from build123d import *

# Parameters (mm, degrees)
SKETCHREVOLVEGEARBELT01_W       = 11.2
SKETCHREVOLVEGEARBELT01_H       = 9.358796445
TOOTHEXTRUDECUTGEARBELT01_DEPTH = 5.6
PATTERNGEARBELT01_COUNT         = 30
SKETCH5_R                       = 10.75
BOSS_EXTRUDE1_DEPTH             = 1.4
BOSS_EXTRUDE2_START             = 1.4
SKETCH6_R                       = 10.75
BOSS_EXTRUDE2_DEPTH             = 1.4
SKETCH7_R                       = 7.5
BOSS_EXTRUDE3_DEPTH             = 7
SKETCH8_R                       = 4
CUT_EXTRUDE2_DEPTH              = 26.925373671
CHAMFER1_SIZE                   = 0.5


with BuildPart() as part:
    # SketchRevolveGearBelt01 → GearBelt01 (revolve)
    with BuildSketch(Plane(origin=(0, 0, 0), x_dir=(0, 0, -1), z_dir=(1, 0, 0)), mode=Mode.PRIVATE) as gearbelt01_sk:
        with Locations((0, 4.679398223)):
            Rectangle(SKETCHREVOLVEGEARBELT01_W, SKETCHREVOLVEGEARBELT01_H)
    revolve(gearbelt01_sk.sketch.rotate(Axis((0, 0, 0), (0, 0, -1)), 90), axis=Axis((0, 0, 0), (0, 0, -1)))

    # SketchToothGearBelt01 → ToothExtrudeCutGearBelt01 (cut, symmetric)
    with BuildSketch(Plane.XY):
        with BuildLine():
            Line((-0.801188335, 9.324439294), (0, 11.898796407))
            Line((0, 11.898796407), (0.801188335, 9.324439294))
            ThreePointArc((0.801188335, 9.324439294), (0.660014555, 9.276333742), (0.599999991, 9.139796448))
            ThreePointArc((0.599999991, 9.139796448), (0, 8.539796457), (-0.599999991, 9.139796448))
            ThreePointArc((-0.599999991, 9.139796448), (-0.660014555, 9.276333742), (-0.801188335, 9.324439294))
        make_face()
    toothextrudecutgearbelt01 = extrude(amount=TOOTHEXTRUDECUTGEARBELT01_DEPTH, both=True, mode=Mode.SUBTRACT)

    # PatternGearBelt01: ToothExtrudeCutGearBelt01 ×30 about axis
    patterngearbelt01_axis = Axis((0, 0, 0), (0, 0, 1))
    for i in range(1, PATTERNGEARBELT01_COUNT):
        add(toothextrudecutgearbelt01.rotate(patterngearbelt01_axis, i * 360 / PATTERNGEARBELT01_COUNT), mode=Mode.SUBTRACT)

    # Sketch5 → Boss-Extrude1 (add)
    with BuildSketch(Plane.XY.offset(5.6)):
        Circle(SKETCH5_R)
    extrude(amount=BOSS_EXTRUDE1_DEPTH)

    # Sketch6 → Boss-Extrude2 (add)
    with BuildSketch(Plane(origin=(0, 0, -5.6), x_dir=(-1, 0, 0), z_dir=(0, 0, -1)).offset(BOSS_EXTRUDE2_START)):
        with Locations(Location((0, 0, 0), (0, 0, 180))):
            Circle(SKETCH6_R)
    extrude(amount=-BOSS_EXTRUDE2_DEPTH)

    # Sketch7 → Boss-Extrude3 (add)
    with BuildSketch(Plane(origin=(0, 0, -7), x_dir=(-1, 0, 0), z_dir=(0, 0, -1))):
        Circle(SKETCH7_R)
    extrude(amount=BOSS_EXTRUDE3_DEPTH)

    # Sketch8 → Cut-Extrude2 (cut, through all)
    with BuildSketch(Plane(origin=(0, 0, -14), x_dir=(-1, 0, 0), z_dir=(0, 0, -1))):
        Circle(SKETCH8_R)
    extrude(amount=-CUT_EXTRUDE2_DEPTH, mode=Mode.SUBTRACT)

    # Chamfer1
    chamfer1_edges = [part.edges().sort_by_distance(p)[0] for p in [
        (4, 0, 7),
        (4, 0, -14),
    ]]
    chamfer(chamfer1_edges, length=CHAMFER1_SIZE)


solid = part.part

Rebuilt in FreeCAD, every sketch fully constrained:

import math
import FreeCAD as App
import Part
import Sketcher


def edges_at(feature, points):
    """Names of the edges that pass closest to the given points."""
    edges = feature.Shape.Edges
    near = lambda p: min(range(len(edges)), key=lambda i: edges[i].distToShape(Part.Vertex(*p))[0])
    return sorted({f"Edge{near(p) + 1}" for p in points})

doc = App.newDocument("Part")
body = doc.addObject("PartDesign::Body", "Body")

sketch1 = doc.addObject("Sketcher::SketchObject", "Sketch")
body.addObject(sketch1)
sketch1.AttachmentSupport = (doc.YZ_Plane, [""])
sketch1.MapMode = "FlatFace"
sketch1.addGeometry(Part.LineSegment(App.Vector(9, 6, 0), App.Vector(0, 6, 0)), False)
sketch1.addGeometry(Part.LineSegment(App.Vector(0, 6, 0), App.Vector(0, -6, 0)), False)
sketch1.addGeometry(Part.LineSegment(App.Vector(0, -6, 0), App.Vector(9, -6, 0)), False)
sketch1.addGeometry(Part.LineSegment(App.Vector(9, -6, 0), App.Vector(9, 6, 0)), False)
sketch1.addConstraint(Sketcher.Constraint("Coincident", 0, 2, 1, 1))
sketch1.addConstraint(Sketcher.Constraint("Coincident", 1, 2, 2, 1))
sketch1.addConstraint(Sketcher.Constraint("Coincident", 2, 2, 3, 1))
sketch1.addConstraint(Sketcher.Constraint("Coincident", 3, 2, 0, 1))
sketch1.addConstraint(Sketcher.Constraint("Horizontal", 0))
sketch1.addConstraint(Sketcher.Constraint("Vertical", 1))
sketch1.addConstraint(Sketcher.Constraint("Horizontal", 2))
sketch1.addConstraint(Sketcher.Constraint("Vertical", 3))
sketch1.addConstraint(Sketcher.Constraint("Symmetric", 0, 2, 1, 2, -1, 1))
sketch1.addConstraint(Sketcher.Constraint("DistanceY", 1, 2, 1, 1, 11.2))
sketch1.addConstraint(Sketcher.Constraint("DistanceX", 0, 2, 0, 1, 9.358796))
revolution = doc.addObject("PartDesign::Revolution", "Revolution")
body.addObject(revolution)
revolution.Profile = sketch1
revolution.ReferenceAxis = (sketch1, ["V_Axis"])
revolution.Angle = 360

sketch2 = doc.addObject("Sketcher::SketchObject", "Sketch001")
body.addObject(sketch2)
sketch2.AttachmentSupport = (doc.XY_Plane, [""])
sketch2.MapMode = "FlatFace"
sketch2.addGeometry(Part.LineSegment(App.Vector(0, 11.9, 0), App.Vector(-0.8, 9.32, 0)), False)
sketch2.addGeometry(Part.ArcOfCircle(Part.Circle(App.Vector(-0.79, 9.14, 0), App.Vector(0, 0, 1), 0.19), math.radians(0), math.radians(95)), False)
sketch2.addGeometry(Part.ArcOfCircle(Part.Circle(App.Vector(0, 9.14, 0), App.Vector(0, 0, 1), 0.6), math.radians(180), math.radians(360)), False)
sketch2.addGeometry(Part.ArcOfCircle(Part.Circle(App.Vector(0.79, 9.14, 0), App.Vector(0, 0, 1), 0.19), math.radians(85), math.radians(180)), False)
sketch2.addGeometry(Part.LineSegment(App.Vector(0.8, 9.32, 0), App.Vector(0, 11.9, 0)), False)
sketch2.addConstraint(Sketcher.Constraint("Coincident", 0, 2, 1, 2))
sketch2.addConstraint(Sketcher.Constraint("Tangent", 1, 1, 2, 1))
sketch2.addConstraint(Sketcher.Constraint("Tangent", 2, 2, 3, 2))
sketch2.addConstraint(Sketcher.Constraint("Coincident", 3, 1, 4, 1))
sketch2.addConstraint(Sketcher.Constraint("Coincident", 4, 2, 0, 1))
sketch2.addConstraint(Sketcher.Constraint("Equal", 1, 3))
sketch2.addConstraint(Sketcher.Constraint("Symmetric", 1, 3, 3, 3, -2))
sketch2.addConstraint(Sketcher.Constraint("PointOnObject", 4, 2, -2))
sketch2.addConstraint(Sketcher.Constraint("Horizontal", 1, 3, 2, 3))
sketch2.addConstraint(Sketcher.Constraint("Horizontal", 0, 2, 3, 1))
sketch2.addConstraint(Sketcher.Constraint("Radius", 2, 0.6))
sketch2.addConstraint(Sketcher.Constraint("Radius", 1, 0.185323))
sketch2.addConstraint(Sketcher.Constraint("DistanceY", 2, 3, 4, 2, 2.759))
sketch2.addConstraint(Sketcher.Constraint("Distance", 0, 2.696149))
sketch2.addConstraint(Sketcher.Constraint("DistanceY", -1, 1, 0, 2, 9.324439))
pocket1 = doc.addObject("PartDesign::Pocket", "Pocket")
body.addObject(pocket1)
pocket1.Profile = sketch2
pocket1.Length = 11.2
pocket1.Midplane = True
doc.recompute()

polarpattern = doc.addObject("PartDesign::PolarPattern", "PolarPattern")
body.addObject(polarpattern)
polarpattern.Originals = [pocket1]
polarpattern.Axis = (doc.Z_Axis, [""])
polarpattern.Angle = 360
polarpattern.Occurrences = 30
body.Tip = polarpattern

sketch3 = doc.addObject("Sketcher::SketchObject", "Sketch002")
body.addObject(sketch3)
sketch3.AttachmentSupport = (doc.XY_Plane, [""])
sketch3.MapMode = "FlatFace"
sketch3.AttachmentOffset = App.Placement(App.Vector(0, 0, 5.6), App.Rotation())
sketch3.addGeometry(Part.Circle(App.Vector(0, 0, 0), App.Vector(0, 0, 1), 11), False)
sketch3.addConstraint(Sketcher.Constraint("Coincident", 0, 3, -1, 1))
sketch3.addConstraint(Sketcher.Constraint("Diameter", 0, 21.5))
pad1 = doc.addObject("PartDesign::Pad", "Pad")
body.addObject(pad1)
pad1.Profile = sketch3
pad1.Length = 1.4

sketch4 = doc.addObject("Sketcher::SketchObject", "Sketch003")
body.addObject(sketch4)
sketch4.AttachmentSupport = (doc.XY_Plane, [""])
sketch4.MapMode = "FlatFace"
sketch4.AttachmentOffset = App.Placement(App.Vector(0, 0, -7), App.Rotation())
sketch4.addGeometry(Part.Circle(App.Vector(0, 0, 0), App.Vector(0, 0, 1), 11), False)
sketch4.addConstraint(Sketcher.Constraint("Coincident", 0, 3, -1, 1))
sketch4.addConstraint(Sketcher.Constraint("Diameter", 0, 21.5))
pad2 = doc.addObject("PartDesign::Pad", "Pad001")
body.addObject(pad2)
pad2.Profile = sketch4
pad2.Length = 1.4

sketch5 = doc.addObject("Sketcher::SketchObject", "Sketch004")
body.addObject(sketch5)
sketch5.AttachmentSupport = (doc.XY_Plane, [""])
sketch5.MapMode = "FlatFace"
sketch5.AttachmentOffset = App.Placement(App.Vector(0, 0, -7), App.Rotation())
sketch5.addGeometry(Part.Circle(App.Vector(0, 0, 0), App.Vector(0, 0, 1), 8), False)
sketch5.addConstraint(Sketcher.Constraint("Coincident", 0, 3, -1, 1))
sketch5.addConstraint(Sketcher.Constraint("Diameter", 0, 15.0))
pad3 = doc.addObject("PartDesign::Pad", "Pad002")
body.addObject(pad3)
pad3.Profile = sketch5
pad3.Length = 7
pad3.Reversed = True

sketch6 = doc.addObject("Sketcher::SketchObject", "Sketch005")
body.addObject(sketch6)
sketch6.AttachmentSupport = (doc.XY_Plane, [""])
sketch6.MapMode = "FlatFace"
sketch6.AttachmentOffset = App.Placement(App.Vector(0, 0, -14), App.Rotation())
sketch6.addGeometry(Part.Circle(App.Vector(0, 0, 0), App.Vector(0, 0, 1), 4), False)
sketch6.addConstraint(Sketcher.Constraint("Coincident", 0, 3, -1, 1))
sketch6.addConstraint(Sketcher.Constraint("Diameter", 0, 8.0))
pocket2 = doc.addObject("PartDesign::Pocket", "Pocket001")
body.addObject(pocket2)
pocket2.Profile = sketch6
pocket2.Type = "ThroughAll"
pocket2.Reversed = True
doc.recompute()

chamfer = doc.addObject("PartDesign::Chamfer", "Chamfer")
body.addObject(chamfer)
chamfer.Base = (pocket2, edges_at(pocket2, [(4, 0, 7), (4, 0, -14)]))
chamfer.Size = 0.5

doc.recompute()
